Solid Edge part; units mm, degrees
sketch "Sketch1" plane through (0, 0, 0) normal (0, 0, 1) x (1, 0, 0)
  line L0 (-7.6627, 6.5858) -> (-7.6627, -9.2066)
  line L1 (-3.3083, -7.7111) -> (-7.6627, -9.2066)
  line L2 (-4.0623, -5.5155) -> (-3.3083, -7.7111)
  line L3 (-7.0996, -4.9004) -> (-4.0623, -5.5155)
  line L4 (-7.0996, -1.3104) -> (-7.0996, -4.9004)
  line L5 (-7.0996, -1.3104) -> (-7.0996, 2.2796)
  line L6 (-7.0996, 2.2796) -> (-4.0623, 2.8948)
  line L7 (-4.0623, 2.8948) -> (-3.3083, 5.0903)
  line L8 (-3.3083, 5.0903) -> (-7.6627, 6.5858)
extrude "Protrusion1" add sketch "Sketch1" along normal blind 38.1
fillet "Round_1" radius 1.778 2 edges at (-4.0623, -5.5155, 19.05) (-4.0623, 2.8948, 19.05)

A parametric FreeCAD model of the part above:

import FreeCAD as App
import Part
import Sketcher

V = App.Vector
Q = App.Units.Quantity


def edges_at(feature, points):
    """Names of the edges that pass closest to the given points."""
    edges = feature.Shape.Edges
    near = lambda p: min(range(len(edges)), key=lambda i: edges[i].distToShape(Part.Vertex(*p))[0])
    return sorted({f"Edge{near(p) + 1}" for p in points})

doc = App.newDocument("Part")
body = doc.addObject("PartDesign::Body", "Body")

# Sketch on XY plane
sketch1 = doc.addObject("Sketcher::SketchObject", "Sketch")
body.addObject(sketch1)
sketch1.AttachmentSupport = (doc.XY_Plane, [""])
sketch1.MapMode = "FlatFace"
sketch1.addGeometry(Part.LineSegment(V(-3.3, 5.1, 0), V(-7.7, 6.6, 0)), False)
sketch1.addGeometry(Part.LineSegment(V(-7.7, 6.6, 0), V(-7.7, -9.2, 0)), False)
sketch1.addGeometry(Part.LineSegment(V(-7.7, -9.2, 0), V(-3.3, -7.7, 0)), False)
sketch1.addGeometry(Part.LineSegment(V(-3.3, -7.7, 0), V(-4.1, -5.5, 0)), False)
sketch1.addGeometry(Part.LineSegment(V(-4.1, -5.5, 0), V(-7.1, -4.9, 0)), False)
sketch1.addGeometry(Part.LineSegment(V(-7.1, -4.9, 0), V(-7.1, 2.3, 0)), False)
sketch1.addGeometry(Part.LineSegment(V(-7.1, 2.3, 0), V(-4.1, 2.9, 0)), False)
sketch1.addGeometry(Part.LineSegment(V(-4.1, 2.9, 0), V(-3.3, 5.1, 0)), False)
sketch1.addConstraint(Sketcher.Constraint("Coincident", 0, 2, 1, 1))
sketch1.addConstraint(Sketcher.Constraint("Coincident", 1, 2, 2, 1))
sketch1.addConstraint(Sketcher.Constraint("Coincident", 2, 2, 3, 1))
sketch1.addConstraint(Sketcher.Constraint("Coincident", 3, 2, 4, 1))
sketch1.addConstraint(Sketcher.Constraint("Coincident", 4, 2, 5, 1))
sketch1.addConstraint(Sketcher.Constraint("Coincident", 5, 2, 6, 1))
sketch1.addConstraint(Sketcher.Constraint("Coincident", 6, 2, 7, 1))
sketch1.addConstraint(Sketcher.Constraint("Coincident", 7, 2, 0, 1))
sketch1.addConstraint(Sketcher.Constraint("Vertical", 1))
sketch1.addConstraint(Sketcher.Constraint("Vertical", 5))
sketch1.addConstraint(Sketcher.Constraint("Perpendicular", 2, 3))
sketch1.addConstraint(Sketcher.Constraint("Perpendicular", 0, 7))
sketch1.addConstraint(Sketcher.Constraint("Vertical", 3, 2, 6, 2))
sketch1.addConstraint(Sketcher.Constraint("Vertical", 2, 2, 7, 2))
sketch1.addConstraint(Sketcher.Constraint("Equal", 0, 2))
sketch1.addConstraint(Sketcher.Constraint("Equal", 4, 6))
sketch1.addConstraint(Sketcher.Constraint("Angle", 6, Q("11.4503 deg")))
sketch1.addConstraint(Sketcher.Constraint("Distance", 4, Q("0.122 in")))
sketch1.addConstraint(Sketcher.Constraint("Distance", 3, Q("0.0914 in")))
sketch1.addConstraint(Sketcher.Constraint("DistanceY", 1, 2, 1, 1, Q("15.7924 mm")))
sketch1.addConstraint(Sketcher.Constraint("DistanceY", 5, 1, 5, 2, Q("7.18 mm")))
sketch1.addConstraint(Sketcher.Constraint("DistanceX", 4, 2, -1, 1, Q("0.2795 in")))
sketch1.addConstraint(Sketcher.Constraint("DistanceY", -1, 1, 7, 2, Q("0.2004 in")))
sketch1.addConstraint(Sketcher.Constraint("Distance", 0, Q("4.604 mm")))
pad1 = doc.addObject("PartDesign::Pad", "Pad")
body.addObject(pad1)
pad1.Profile = sketch1
pad1.Length = Q("1.5 in")
doc.recompute()

fillet = doc.addObject("PartDesign::Fillet", "Fillet")
body.addObject(fillet)
fillet.Base = (pad1, edges_at(pad1, [(-4.062, -5.516, 19.05), (-4.062, 2.895, 19.05)]))
fillet.Radius = Q("0.07 in")

doc.recompute()
